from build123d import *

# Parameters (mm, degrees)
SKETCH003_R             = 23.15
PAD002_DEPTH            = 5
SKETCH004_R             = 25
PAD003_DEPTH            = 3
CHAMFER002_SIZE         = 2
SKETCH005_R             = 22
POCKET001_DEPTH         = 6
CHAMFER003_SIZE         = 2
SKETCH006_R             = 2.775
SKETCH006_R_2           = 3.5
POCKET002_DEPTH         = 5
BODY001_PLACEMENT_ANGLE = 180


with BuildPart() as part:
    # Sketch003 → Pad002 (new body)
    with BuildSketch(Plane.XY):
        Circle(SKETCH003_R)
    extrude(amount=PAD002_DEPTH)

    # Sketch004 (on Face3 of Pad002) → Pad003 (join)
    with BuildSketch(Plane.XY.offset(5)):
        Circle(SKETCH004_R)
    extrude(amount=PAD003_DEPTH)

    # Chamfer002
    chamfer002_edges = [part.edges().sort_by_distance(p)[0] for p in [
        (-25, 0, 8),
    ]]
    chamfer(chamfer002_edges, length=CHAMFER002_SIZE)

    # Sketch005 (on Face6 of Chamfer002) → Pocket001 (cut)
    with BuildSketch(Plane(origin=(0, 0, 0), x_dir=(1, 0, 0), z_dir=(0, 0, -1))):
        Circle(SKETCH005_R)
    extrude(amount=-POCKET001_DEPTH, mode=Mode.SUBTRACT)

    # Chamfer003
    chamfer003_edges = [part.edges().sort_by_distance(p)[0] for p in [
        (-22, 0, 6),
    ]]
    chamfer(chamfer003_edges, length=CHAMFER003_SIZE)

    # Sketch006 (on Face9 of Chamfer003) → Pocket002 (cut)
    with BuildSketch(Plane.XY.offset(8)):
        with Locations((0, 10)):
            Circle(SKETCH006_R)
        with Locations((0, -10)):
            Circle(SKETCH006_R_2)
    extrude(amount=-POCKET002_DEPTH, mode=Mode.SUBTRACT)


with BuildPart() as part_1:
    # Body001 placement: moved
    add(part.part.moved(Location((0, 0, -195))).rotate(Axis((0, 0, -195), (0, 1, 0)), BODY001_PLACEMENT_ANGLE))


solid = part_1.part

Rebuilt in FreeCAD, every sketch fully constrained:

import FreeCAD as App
import Part
import Sketcher
from FreeCAD import Vector


def edges_at(feature, points):
    """Names of the edges that pass closest to the given points."""
    edges = feature.Shape.Edges
    near = lambda p: min(range(len(edges)), key=lambda i: edges[i].distToShape(Part.Vertex(*p))[0])
    return sorted({f"Edge{near(p) + 1}" for p in points})

doc = App.newDocument("Part")
params = doc.addObject("Spreadsheet::Sheet", "Params")
for row, (alias, value) in enumerate([
    ("sketch1_diameter", "46.3 mm"),
    ("pad1_length", "5 mm"),
    ("sketch2_diameter", "50 mm"),
    ("pad2_length", "3 mm"),
    ("chamfer_size", "2 mm"),
    ("sketch3_diameter", "44 mm"),
    ("pocket1_length", "6 mm"),
    ("chamfer2_size", "2 mm"),
    ("sketch4_diameter", "7 mm"),
    ("sketch4_diameter2", "5.55 mm"),
    ("pocket2_length", "5 mm"),
], start=1):
    params.set(f"A{row}", alias)
    params.set(f"B{row}", "=" + value)
    params.setAlias(f"B{row}", alias)

body = doc.addObject("PartDesign::Body", "Body")

sketch1 = body.newObject("Sketcher::SketchObject", "Sketch")
sketch1.AttachmentSupport = (doc.getObject("XY_Plane"), [""])
sketch1.MapMode = "FlatFace"
sketch1.addGeometry(Part.Circle(Vector(0, 0, 0), Vector(0, 0, 1), 23.15), False)
sketch1.addConstraint([
    Sketcher.Constraint("Coincident", 0, 3, -1, 1),
    Sketcher.Constraint("Diameter", 0, 46.3),
])
sketch1.setExpression("Constraints[1]", "Params.sketch1_diameter")
pad1 = body.newObject("PartDesign::Pad", "Pad")
pad1.Profile = sketch1
pad1.setExpression("Length", "Params.pad1_length")

sketch2 = body.newObject("Sketcher::SketchObject", "Sketch001")
sketch2.AttachmentSupport = (doc.getObject("XY_Plane"), [""])
sketch2.MapMode = "FlatFace"
sketch2.AttachmentOffset = App.Placement(Vector(0, 0, 5), App.Rotation())
sketch2.addGeometry(Part.Circle(Vector(0, 0, 0), Vector(0, 0, 1), 25), False)
sketch2.addConstraint([
    Sketcher.Constraint("Coincident", 0, 3, -1, 1),
    Sketcher.Constraint("Diameter", 0, 50.0),
])
sketch2.setExpression("Constraints[1]", "Params.sketch2_diameter")
pad2 = body.newObject("PartDesign::Pad", "Pad001")
pad2.Profile = sketch2
pad2.setExpression("Length", "Params.pad2_length")
doc.recompute()

chamfer = body.newObject("PartDesign::Chamfer", "Chamfer")
chamfer.Base = (pad2, edges_at(pad2, [(-25, 0, 8)]))
chamfer.setExpression("Size", "Params.chamfer_size")

sketch3 = body.newObject("Sketcher::SketchObject", "Sketch002")
sketch3.AttachmentSupport = (doc.getObject("XY_Plane"), [""])
sketch3.MapMode = "FlatFace"
sketch3.addGeometry(Part.Circle(Vector(0, 0, 0), Vector(0, 0, 1), 22), False)
sketch3.addConstraint([
    Sketcher.Constraint("Coincident", 0, 3, -1, 1),
    Sketcher.Constraint("Diameter", 0, 44.0),
])
sketch3.setExpression("Constraints[1]", "Params.sketch3_diameter")
pocket1 = body.newObject("PartDesign::Pocket", "Pocket")
pocket1.Profile = sketch3
pocket1.setExpression("Length", "Params.pocket1_length")
pocket1.Reversed = True
doc.recompute()

chamfer2 = body.newObject("PartDesign::Chamfer", "Chamfer001")
chamfer2.Base = (pocket1, edges_at(pocket1, [(-22, 0, 6)]))
chamfer2.setExpression("Size", "Params.chamfer2_size")

sketch4 = body.newObject("Sketcher::SketchObject", "Sketch003")
sketch4.AttachmentSupport = (doc.getObject("XY_Plane"), [""])
sketch4.MapMode = "FlatFace"
sketch4.AttachmentOffset = App.Placement(Vector(0, 0, 8), App.Rotation())
sketch4.addGeometry([
    Part.Circle(Vector(0, 10, 0), Vector(0, 0, 1), 2.775),
    Part.Circle(Vector(0, -10, 0), Vector(0, 0, 1), 3.5),
], False)
sketch4.addConstraint([
    Sketcher.Constraint("Symmetric", 0, 3, 1, 3, -1, 1),
    Sketcher.Constraint("PointOnObject", 0, 3, -2),
    Sketcher.Constraint("Diameter", 1, 7.0),
    Sketcher.Constraint("Diameter", 0, 5.55),
    Sketcher.Constraint("DistanceY", -1, 1, 0, 3, 10.0),
])
sketch4.setExpression("Constraints[2]", "Params.sketch4_diameter")
sketch4.setExpression("Constraints[3]", "Params.sketch4_diameter2")
pocket2 = body.newObject("PartDesign::Pocket", "Pocket001")
pocket2.Profile = sketch4
pocket2.setExpression("Length", "Params.pocket2_length")
body2 = doc.addObject("PartDesign::Body", "Body001")
doc.recompute()

body.Placement = App.Placement(Vector(0, 0, -195), App.Rotation(Vector(0, 1, 0), 180))
boolean = body2.newObject("PartDesign::Boolean", "Boolean")
boolean.Type = "Fuse"
boolean.addObjects([body])

doc.recompute()
